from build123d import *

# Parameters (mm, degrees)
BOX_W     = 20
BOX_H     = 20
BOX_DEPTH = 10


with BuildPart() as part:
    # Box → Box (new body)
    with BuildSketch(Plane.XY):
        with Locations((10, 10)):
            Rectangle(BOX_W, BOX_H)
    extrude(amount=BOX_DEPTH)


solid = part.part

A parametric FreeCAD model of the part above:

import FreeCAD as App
import Part
import Sketcher

V = App.Vector


def add_polygon(sketch, points):
    """Adds a closed chain of lines whose ends are joined by coincident constraints."""
    first, n = sketch.GeometryCount, len(points)
    for a, b in zip(points, points[1:] + points[:1]):
        sketch.addGeometry(Part.LineSegment(App.Vector(*a, 0), App.Vector(*b, 0)), False)
    for i in range(n):
        sketch.addConstraint(Sketcher.Constraint("Coincident", first + i, 2, first + (i + 1) % n, 1))

doc = App.newDocument("Part")
body = doc.addObject("PartDesign::Body", "Body")

sketch1 = body.newObject("Sketcher::SketchObject", "Sketch")
sketch1.AttachmentSupport = (doc.getObject("XY_Plane"), [""])
sketch1.MapMode = "FlatFace"
add_polygon(sketch1, [(0, 20), (0, 0), (20, 0), (20, 20)])
sketch1.addConstraint(Sketcher.Constraint("Vertical", 0))
sketch1.addConstraint(Sketcher.Constraint("Horizontal", 1))
sketch1.addConstraint(Sketcher.Constraint("Vertical", 2))
sketch1.addConstraint(Sketcher.Constraint("Horizontal", 3))
sketch1.addConstraint(Sketcher.Constraint("Coincident", 0, 2, -1, 1))
sketch1.addConstraint(Sketcher.Constraint("Equal", 3, 0))
sketch1.addConstraint(Sketcher.Constraint("DistanceX", 1, 1, 1, 2, 20.0))
pad1 = body.newObject("PartDesign::Pad", "Pad")
pad1.Profile = sketch1
pad1.Length = 10

doc.recompute()
